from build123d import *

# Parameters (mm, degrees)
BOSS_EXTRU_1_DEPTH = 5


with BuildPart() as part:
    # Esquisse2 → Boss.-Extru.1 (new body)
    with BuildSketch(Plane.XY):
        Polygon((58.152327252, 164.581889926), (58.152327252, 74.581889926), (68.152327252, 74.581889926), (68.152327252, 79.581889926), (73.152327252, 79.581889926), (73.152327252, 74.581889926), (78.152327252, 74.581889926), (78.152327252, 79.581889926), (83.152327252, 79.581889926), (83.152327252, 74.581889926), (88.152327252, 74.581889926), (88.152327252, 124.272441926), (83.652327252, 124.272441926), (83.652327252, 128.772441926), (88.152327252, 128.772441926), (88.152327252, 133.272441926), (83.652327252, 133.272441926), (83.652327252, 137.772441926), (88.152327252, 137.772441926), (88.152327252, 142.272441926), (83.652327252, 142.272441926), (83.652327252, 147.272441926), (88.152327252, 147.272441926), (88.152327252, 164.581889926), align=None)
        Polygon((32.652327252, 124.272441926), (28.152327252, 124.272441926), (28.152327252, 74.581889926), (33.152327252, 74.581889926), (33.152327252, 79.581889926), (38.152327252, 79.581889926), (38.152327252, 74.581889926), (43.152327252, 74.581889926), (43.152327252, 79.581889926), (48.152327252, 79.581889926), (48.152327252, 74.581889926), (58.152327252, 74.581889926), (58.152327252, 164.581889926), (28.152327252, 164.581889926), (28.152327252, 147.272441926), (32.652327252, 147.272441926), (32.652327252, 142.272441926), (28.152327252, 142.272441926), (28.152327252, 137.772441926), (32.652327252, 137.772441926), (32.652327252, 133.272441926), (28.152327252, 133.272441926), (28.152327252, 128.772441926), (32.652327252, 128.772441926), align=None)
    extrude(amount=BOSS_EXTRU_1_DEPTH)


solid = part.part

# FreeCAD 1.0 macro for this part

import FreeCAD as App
import Part
import Sketcher

V = App.Vector
Q = App.Units.Quantity


def add_polygon(sketch, points):
    """Adds a closed chain of lines whose ends are joined by coincident constraints."""
    first, n = sketch.GeometryCount, len(points)
    for a, b in zip(points, points[1:] + points[:1]):
        sketch.addGeometry(Part.LineSegment(App.Vector(*a, 0), App.Vector(*b, 0)), False)
    for i in range(n):
        sketch.addConstraint(Sketcher.Constraint("Coincident", first + i, 2, first + (i + 1) % n, 1))

doc = App.newDocument("Part")
body = doc.addObject("PartDesign::Body", "Body")

sketch1 = doc.addObject("Sketcher::SketchObject", "Sketch")
body.addObject(sketch1)
sketch1.AttachmentSupport = (doc.XY_Plane, [""])
sketch1.MapMode = "FlatFace"
add_polygon(sketch1, [(68.152327, 74.58189), (68.152327, 79.58189), (73.152327, 79.58189), (73.152327, 74.58189), (78.152327, 74.58189), (78.152327, 79.58189), (83.152327, 79.58189), (83.152327, 74.58189), (88.152327, 74.58189), (88.152327, 124.272442), (83.652327, 124.272442), (83.652327, 128.772442), (88.152327, 128.772442), (88.152327, 133.272442), (83.652327, 133.272442), (83.652327, 137.772442), (88.152327, 137.772442), (88.152327, 142.272442), (83.652327, 142.272442), (83.652327, 147.272442), (88.152327, 147.272442), (88.152327, 164.58189), (28.152327, 164.58189), (28.152327, 147.272442), (32.652327, 147.272442), (32.652327, 142.272442), (28.152327, 142.272442), (28.152327, 137.772442), (32.652327, 137.772442), (32.652327, 133.272442), (28.152327, 133.272442), (28.152327, 128.772442), (32.652327, 128.772442), (32.652327, 124.272442), (28.152327, 124.272442), (28.152327, 74.58189), (33.152327, 74.58189), (33.152327, 79.58189), (38.152327, 79.58189), (38.152327, 74.58189), (43.152327, 74.58189), (43.152327, 79.58189), (48.152327, 79.58189), (48.152327, 74.58189)])
sketch1.addConstraint(Sketcher.Constraint("Vertical", 0))
sketch1.addConstraint(Sketcher.Constraint("Horizontal", 1))
sketch1.addConstraint(Sketcher.Constraint("Vertical", 2))
sketch1.addConstraint(Sketcher.Constraint("Horizontal", 3))
sketch1.addConstraint(Sketcher.Constraint("Vertical", 4))
sketch1.addConstraint(Sketcher.Constraint("Horizontal", 5))
sketch1.addConstraint(Sketcher.Constraint("Vertical", 6))
sketch1.addConstraint(Sketcher.Constraint("Horizontal", 7))
sketch1.addConstraint(Sketcher.Constraint("Vertical", 8))
sketch1.addConstraint(Sketcher.Constraint("Horizontal", 9))
sketch1.addConstraint(Sketcher.Constraint("Vertical", 10))
sketch1.addConstraint(Sketcher.Constraint("Horizontal", 11))
sketch1.addConstraint(Sketcher.Constraint("Vertical", 12))
sketch1.addConstraint(Sketcher.Constraint("Horizontal", 13))
sketch1.addConstraint(Sketcher.Constraint("Vertical", 14))
sketch1.addConstraint(Sketcher.Constraint("Horizontal", 15))
sketch1.addConstraint(Sketcher.Constraint("Vertical", 16))
sketch1.addConstraint(Sketcher.Constraint("Horizontal", 17))
sketch1.addConstraint(Sketcher.Constraint("Vertical", 18))
sketch1.addConstraint(Sketcher.Constraint("Horizontal", 19))
sketch1.addConstraint(Sketcher.Constraint("Vertical", 20))
sketch1.addConstraint(Sketcher.Constraint("Horizontal", 21))
sketch1.addConstraint(Sketcher.Constraint("Vertical", 22))
sketch1.addConstraint(Sketcher.Constraint("Horizontal", 23))
sketch1.addConstraint(Sketcher.Constraint("Vertical", 24))
sketch1.addConstraint(Sketcher.Constraint("Horizontal", 25))
sketch1.addConstraint(Sketcher.Constraint("Vertical", 26))
sketch1.addConstraint(Sketcher.Constraint("Horizontal", 27))
sketch1.addConstraint(Sketcher.Constraint("Vertical", 28))
sketch1.addConstraint(Sketcher.Constraint("Horizontal", 29))
sketch1.addConstraint(Sketcher.Constraint("Vertical", 30))
sketch1.addConstraint(Sketcher.Constraint("Horizontal", 31))
sketch1.addConstraint(Sketcher.Constraint("Vertical", 32))
sketch1.addConstraint(Sketcher.Constraint("Horizontal", 33))
sketch1.addConstraint(Sketcher.Constraint("Vertical", 34))
sketch1.addConstraint(Sketcher.Constraint("Horizontal", 35))
sketch1.addConstraint(Sketcher.Constraint("Vertical", 36))
sketch1.addConstraint(Sketcher.Constraint("Horizontal", 37))
sketch1.addConstraint(Sketcher.Constraint("Vertical", 38))
sketch1.addConstraint(Sketcher.Constraint("Horizontal", 39))
sketch1.addConstraint(Sketcher.Constraint("Vertical", 40))
sketch1.addConstraint(Sketcher.Constraint("Horizontal", 41))
sketch1.addConstraint(Sketcher.Constraint("Vertical", 42))
sketch1.addConstraint(Sketcher.Constraint("Horizontal", 43))
sketch1.addConstraint(Sketcher.Constraint("Horizontal", 1, 2, 4, 2))
sketch1.addConstraint(Sketcher.Constraint("Horizontal", 3, 2, 6, 2))
sketch1.addConstraint(Sketcher.Constraint("Horizontal", 19, 2, 22, 2))
sketch1.addConstraint(Sketcher.Constraint("Horizontal", 17, 2, 24, 2))
sketch1.addConstraint(Sketcher.Constraint("Horizontal", 15, 2, 26, 2))
sketch1.addConstraint(Sketcher.Constraint("Horizontal", 13, 2, 28, 2))
sketch1.addConstraint(Sketcher.Constraint("Horizontal", 11, 2, 30, 2))
sketch1.addConstraint(Sketcher.Constraint("Horizontal", 9, 2, 32, 2))
sketch1.addConstraint(Sketcher.Constraint("Horizontal", 7, 2, 34, 2))
sketch1.addConstraint(Sketcher.Constraint("Horizontal", 5, 2, 36, 2))
sketch1.addConstraint(Sketcher.Constraint("Horizontal", 35, 2, 38, 2))
sketch1.addConstraint(Sketcher.Constraint("Horizontal", 37, 2, 40, 2))
sketch1.addConstraint(Sketcher.Constraint("Horizontal", 39, 2, 42, 2))
sketch1.addConstraint(Sketcher.Constraint("Vertical", 8, 2, 11, 2))
sketch1.addConstraint(Sketcher.Constraint("Vertical", 10, 2, 13, 2))
sketch1.addConstraint(Sketcher.Constraint("Vertical", 12, 2, 15, 2))
sketch1.addConstraint(Sketcher.Constraint("Vertical", 14, 2, 17, 2))
sketch1.addConstraint(Sketcher.Constraint("Vertical", 16, 2, 19, 2))
sketch1.addConstraint(Sketcher.Constraint("Vertical", 22, 2, 25, 2))
sketch1.addConstraint(Sketcher.Constraint("Vertical", 24, 2, 27, 2))
sketch1.addConstraint(Sketcher.Constraint("Vertical", 26, 2, 29, 2))
sketch1.addConstraint(Sketcher.Constraint("Vertical", 28, 2, 31, 2))
sketch1.addConstraint(Sketcher.Constraint("Vertical", 30, 2, 33, 2))
sketch1.addConstraint(Sketcher.Constraint("Equal", 1, 3))
sketch1.addConstraint(Sketcher.Constraint("Equal", 3, 5))
sketch1.addConstraint(Sketcher.Constraint("Equal", 5, 7))
sketch1.addConstraint(Sketcher.Constraint("Equal", 19, 23))
sketch1.addConstraint(Sketcher.Constraint("Equal", 7, 35))
sketch1.addConstraint(Sketcher.Constraint("Equal", 35, 37))
sketch1.addConstraint(Sketcher.Constraint("Equal", 37, 39))
sketch1.addConstraint(Sketcher.Constraint("Equal", 39, 41))
sketch1.addConstraint(Sketcher.Constraint("Equal", 41, 0))
sketch1.addConstraint(Sketcher.Constraint("Equal", 33, 10))
sketch1.addConstraint(Sketcher.Constraint("Equal", 10, 12))
sketch1.addConstraint(Sketcher.Constraint("Equal", 12, 14))
sketch1.addConstraint(Sketcher.Constraint("Equal", 14, 16))
sketch1.addConstraint(Sketcher.Constraint("Equal", 6, 18))
sketch1.addConstraint(Sketcher.Constraint("DistanceX", 1, 1, 1, 2, Q("5 mm")))
sketch1.addConstraint(Sketcher.Constraint("DistanceX", 21, 2, 21, 1, Q("60 mm")))
sketch1.addConstraint(Sketcher.Constraint("DistanceX", 9, 2, 9, 1, Q("4.5 mm")))
sketch1.addConstraint(Sketcher.Constraint("DistanceY", 8, 1, 8, 2, Q("49.690552 mm")))
sketch1.addConstraint(Sketcher.Constraint("DistanceY", 20, 1, 20, 2, Q("17.309448 mm")))
sketch1.addConstraint(Sketcher.Constraint("DistanceY", -1, 1, 0, 2, Q("79.58189 mm")))
sketch1.addConstraint(Sketcher.Constraint("DistanceX", -1, 1, 0, 2, Q("68.152327 mm")))
pad1 = doc.addObject("PartDesign::Pad", "Pad")
body.addObject(pad1)
pad1.Profile = sketch1
pad1.Length = 5

doc.recompute()
